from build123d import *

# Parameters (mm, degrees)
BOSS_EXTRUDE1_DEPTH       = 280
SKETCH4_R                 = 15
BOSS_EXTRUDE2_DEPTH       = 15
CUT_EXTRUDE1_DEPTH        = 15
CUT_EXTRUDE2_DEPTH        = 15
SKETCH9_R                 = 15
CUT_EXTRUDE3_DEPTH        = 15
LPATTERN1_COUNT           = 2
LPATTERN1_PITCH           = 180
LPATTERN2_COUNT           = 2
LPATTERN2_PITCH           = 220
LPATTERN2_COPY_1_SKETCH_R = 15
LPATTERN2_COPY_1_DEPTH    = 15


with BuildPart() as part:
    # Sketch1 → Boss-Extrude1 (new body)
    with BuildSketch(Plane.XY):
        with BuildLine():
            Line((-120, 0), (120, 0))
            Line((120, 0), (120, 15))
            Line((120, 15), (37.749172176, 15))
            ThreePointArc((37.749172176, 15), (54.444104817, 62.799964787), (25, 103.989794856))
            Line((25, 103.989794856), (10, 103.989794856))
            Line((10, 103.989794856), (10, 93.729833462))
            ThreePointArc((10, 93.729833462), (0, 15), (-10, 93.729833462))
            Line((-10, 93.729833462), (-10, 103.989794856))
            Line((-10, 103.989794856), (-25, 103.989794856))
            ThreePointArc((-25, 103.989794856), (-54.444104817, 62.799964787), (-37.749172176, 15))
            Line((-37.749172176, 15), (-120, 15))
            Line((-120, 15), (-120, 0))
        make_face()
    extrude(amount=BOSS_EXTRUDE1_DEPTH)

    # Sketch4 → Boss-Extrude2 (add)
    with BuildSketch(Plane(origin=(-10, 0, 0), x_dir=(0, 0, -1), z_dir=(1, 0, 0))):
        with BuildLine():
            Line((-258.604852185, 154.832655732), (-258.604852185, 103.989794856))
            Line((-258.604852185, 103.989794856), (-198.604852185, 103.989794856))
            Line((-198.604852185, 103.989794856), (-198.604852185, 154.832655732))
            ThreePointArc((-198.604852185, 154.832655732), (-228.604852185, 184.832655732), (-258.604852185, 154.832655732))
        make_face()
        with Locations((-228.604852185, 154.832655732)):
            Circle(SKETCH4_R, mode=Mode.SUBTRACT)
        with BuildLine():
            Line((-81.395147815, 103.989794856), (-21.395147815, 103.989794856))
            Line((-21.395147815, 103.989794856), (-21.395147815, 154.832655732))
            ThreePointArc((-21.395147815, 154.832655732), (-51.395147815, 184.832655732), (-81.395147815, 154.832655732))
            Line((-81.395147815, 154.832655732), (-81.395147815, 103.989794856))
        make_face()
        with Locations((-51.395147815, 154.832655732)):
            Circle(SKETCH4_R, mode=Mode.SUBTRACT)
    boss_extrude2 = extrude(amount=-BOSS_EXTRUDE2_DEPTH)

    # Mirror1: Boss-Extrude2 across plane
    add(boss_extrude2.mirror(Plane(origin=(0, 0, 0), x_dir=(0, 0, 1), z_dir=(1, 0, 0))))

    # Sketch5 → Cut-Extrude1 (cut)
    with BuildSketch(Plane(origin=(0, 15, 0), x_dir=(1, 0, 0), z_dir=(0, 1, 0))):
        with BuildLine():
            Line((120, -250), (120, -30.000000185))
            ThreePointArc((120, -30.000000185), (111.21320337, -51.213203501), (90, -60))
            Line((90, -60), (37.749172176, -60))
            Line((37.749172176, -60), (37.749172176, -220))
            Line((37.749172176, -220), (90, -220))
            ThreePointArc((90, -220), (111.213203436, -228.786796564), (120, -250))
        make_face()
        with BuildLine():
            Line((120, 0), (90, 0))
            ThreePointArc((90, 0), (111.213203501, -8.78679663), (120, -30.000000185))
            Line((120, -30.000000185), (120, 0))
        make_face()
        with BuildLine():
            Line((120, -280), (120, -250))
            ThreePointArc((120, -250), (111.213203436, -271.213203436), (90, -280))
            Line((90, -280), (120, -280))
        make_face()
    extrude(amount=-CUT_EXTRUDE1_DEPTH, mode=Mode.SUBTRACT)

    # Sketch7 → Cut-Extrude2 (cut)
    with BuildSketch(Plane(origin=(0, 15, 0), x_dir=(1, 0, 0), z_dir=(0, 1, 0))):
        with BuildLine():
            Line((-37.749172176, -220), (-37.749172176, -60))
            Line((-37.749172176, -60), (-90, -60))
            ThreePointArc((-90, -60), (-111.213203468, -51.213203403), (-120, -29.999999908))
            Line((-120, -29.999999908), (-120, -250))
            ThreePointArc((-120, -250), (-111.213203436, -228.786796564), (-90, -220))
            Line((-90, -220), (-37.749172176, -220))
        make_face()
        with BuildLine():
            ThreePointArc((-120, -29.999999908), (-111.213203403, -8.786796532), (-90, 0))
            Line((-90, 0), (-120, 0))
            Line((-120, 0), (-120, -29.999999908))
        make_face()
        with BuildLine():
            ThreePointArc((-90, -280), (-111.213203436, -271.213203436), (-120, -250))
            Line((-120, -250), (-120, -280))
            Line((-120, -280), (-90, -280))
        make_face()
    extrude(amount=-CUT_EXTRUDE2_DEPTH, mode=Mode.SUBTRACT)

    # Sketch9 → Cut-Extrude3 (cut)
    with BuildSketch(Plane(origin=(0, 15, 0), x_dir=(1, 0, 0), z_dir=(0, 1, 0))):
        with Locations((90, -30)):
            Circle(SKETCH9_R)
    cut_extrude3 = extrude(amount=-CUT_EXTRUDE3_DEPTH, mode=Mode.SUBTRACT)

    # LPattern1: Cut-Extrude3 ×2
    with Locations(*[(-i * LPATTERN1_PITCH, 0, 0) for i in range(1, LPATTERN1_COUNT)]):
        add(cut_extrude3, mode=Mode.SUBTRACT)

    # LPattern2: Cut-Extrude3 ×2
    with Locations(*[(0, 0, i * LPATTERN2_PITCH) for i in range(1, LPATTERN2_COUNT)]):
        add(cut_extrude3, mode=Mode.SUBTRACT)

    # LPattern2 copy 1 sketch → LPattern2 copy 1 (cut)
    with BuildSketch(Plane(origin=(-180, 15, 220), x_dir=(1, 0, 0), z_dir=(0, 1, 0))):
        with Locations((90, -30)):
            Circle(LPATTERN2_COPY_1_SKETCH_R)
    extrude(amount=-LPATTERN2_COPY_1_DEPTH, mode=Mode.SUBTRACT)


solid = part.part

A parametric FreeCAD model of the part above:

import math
import FreeCAD as App
import Part
import Sketcher
Q = App.Units.Quantity

doc = App.newDocument("Part")
body = doc.addObject("PartDesign::Body", "Body")

# Sketch on XY plane
sketch1 = body.newObject("Sketcher::SketchObject", "Sketch")
sketch1.AttachmentSupport = (doc.getObject("XY_Plane"), [""])
sketch1.MapMode = "FlatFace"
sketch1.addGeometry([
    Part.LineSegment(App.Vector(-120, 0, 0), App.Vector(120, 0, 0)),  # 0
    Part.LineSegment(App.Vector(120, 0, 0), App.Vector(120, 15, 0)),  # 1
    Part.LineSegment(App.Vector(120, 15, 0), App.Vector(38, 15, 0)),  # 2
    Part.ArcOfCircle(Part.Circle(App.Vector(0, 55, 0), App.Vector(0, 0, 1), 55), math.radians(-47), math.radians(63)),  # 3
    Part.LineSegment(App.Vector(25, 104, 0), App.Vector(10, 104, 0)),  # 4
    Part.LineSegment(App.Vector(10, 104, 0), App.Vector(10, 94, 0)),  # 5
    Part.ArcOfCircle(Part.Circle(App.Vector(0, 55, 0), App.Vector(0, 0, 1), 40), math.radians(104), math.radians(436)),  # 6
    Part.LineSegment(App.Vector(-10, 94, 0), App.Vector(-10, 104, 0)),  # 7
    Part.LineSegment(App.Vector(-10, 104, 0), App.Vector(-25, 104, 0)),  # 8
    Part.ArcOfCircle(Part.Circle(App.Vector(0, 55, 0), App.Vector(0, 0, 1), 55), math.radians(117), math.radians(227)),  # 9
    Part.LineSegment(App.Vector(-38, 15, 0), App.Vector(-120, 15, 0)),  # 10
    Part.LineSegment(App.Vector(-120, 15, 0), App.Vector(-120, 0, 0)),  # 11
], False)
sketch1.addConstraint([
    Sketcher.Constraint("Coincident", 0, 2, 1, 1),
    Sketcher.Constraint("Coincident", 1, 2, 2, 1),
    Sketcher.Constraint("Coincident", 2, 2, 3, 1),
    Sketcher.Constraint("Coincident", 3, 2, 4, 1),
    Sketcher.Constraint("Coincident", 4, 2, 5, 1),
    Sketcher.Constraint("Coincident", 5, 2, 6, 2),
    Sketcher.Constraint("Coincident", 6, 1, 7, 1),
    Sketcher.Constraint("Coincident", 7, 2, 8, 1),
    Sketcher.Constraint("Coincident", 8, 2, 9, 1),
    Sketcher.Constraint("Coincident", 9, 2, 10, 1),
    Sketcher.Constraint("Coincident", 10, 2, 11, 1),
    Sketcher.Constraint("Coincident", 11, 2, 0, 1),
    Sketcher.Constraint("Horizontal", 0),
    Sketcher.Constraint("Vertical", 1),
    Sketcher.Constraint("Horizontal", 2),
    Sketcher.Constraint("Horizontal", 4),
    Sketcher.Constraint("Vertical", 5),
    Sketcher.Constraint("Vertical", 7),
    Sketcher.Constraint("Horizontal", 8),
    Sketcher.Constraint("Horizontal", 10),
    Sketcher.Constraint("Vertical", 11),
    Sketcher.Constraint("Coincident", 6, 3, 3, 3),
    Sketcher.Constraint("Coincident", 9, 3, 3, 3),
    Sketcher.Constraint("Equal", 3, 9),
    Sketcher.Constraint("Symmetric", 0, 2, 11, 2, -1, 1),
    Sketcher.Constraint("Symmetric", 5, 2, 6, 1, -2),
    Sketcher.Constraint("Horizontal", 4, 2, 7, 2),
    Sketcher.Constraint("Horizontal", 2, 2, 9, 2),
    Sketcher.Constraint("Equal", 8, 1),
    Sketcher.Constraint("Radius", 3, Q("55 mm")),
    Sketcher.Constraint("Radius", 6, Q("40 mm")),
    Sketcher.Constraint("DistanceX", 0, 1, 0, 2, Q("240 mm")),
    Sketcher.Constraint("DistanceX", 4, 2, 4, 1, Q("15 mm")),
    Sketcher.Constraint("DistanceY", -1, 1, 3, 3, Q("55 mm")),
    Sketcher.Constraint("DistanceX", -1, 1, 3, 2, Q("25 mm")),
])
pad1 = body.newObject("PartDesign::Pad", "Pad")
pad1.Profile = sketch1
pad1.Length = 280

# Sketch on YZ plane
sketch2 = body.newObject("Sketcher::SketchObject", "Sketch001")
sketch2.AttachmentSupport = (doc.getObject("YZ_Plane"), [""])
sketch2.MapMode = "FlatFace"
sketch2.AttachmentOffset = App.Placement(App.Vector(0, 0, -10), App.Rotation())
sketch2.addGeometry([
    Part.LineSegment(App.Vector(155, 259, 0), App.Vector(104, 259, 0)),  # 0
    Part.LineSegment(App.Vector(104, 259, 0), App.Vector(104, 199, 0)),  # 1
    Part.LineSegment(App.Vector(104, 199, 0), App.Vector(155, 199, 0)),  # 2
    Part.ArcOfCircle(Part.Circle(App.Vector(155, 229, 0), App.Vector(0, 0, 1), 30), math.radians(-90), math.radians(90)),  # 3
    Part.Circle(App.Vector(155, 229, 0), App.Vector(0, 0, 1), 15),  # 4
    Part.LineSegment(App.Vector(104, 81, 0), App.Vector(104, 21, 0)),  # 5
    Part.LineSegment(App.Vector(104, 21, 0), App.Vector(155, 21, 0)),  # 6
    Part.ArcOfCircle(Part.Circle(App.Vector(155, 51, 0), App.Vector(0, 0, 1), 30), math.radians(-90), math.radians(90)),  # 7
    Part.LineSegment(App.Vector(155, 81, 0), App.Vector(104, 81, 0)),  # 8
    Part.Circle(App.Vector(155, 51, 0), App.Vector(0, 0, 1), 15),  # 9
], False)
sketch2.addConstraint([
    Sketcher.Constraint("Coincident", 0, 2, 1, 1),
    Sketcher.Constraint("Coincident", 1, 2, 2, 1),
    Sketcher.Constraint("Tangent", 2, 2, 3, 1),
    Sketcher.Constraint("Tangent", 3, 2, 0, 1),
    Sketcher.Constraint("Coincident", 5, 2, 6, 1),
    Sketcher.Constraint("Tangent", 6, 2, 7, 1),
    Sketcher.Constraint("Tangent", 7, 2, 8, 1),
    Sketcher.Constraint("Coincident", 8, 2, 5, 1),
    Sketcher.Constraint("Horizontal", 0),
    Sketcher.Constraint("Vertical", 1),
    Sketcher.Constraint("Horizontal", 2),
    Sketcher.Constraint("Vertical", 5),
    Sketcher.Constraint("Horizontal", 6),
    Sketcher.Constraint("Horizontal", 8),
    Sketcher.Constraint("Coincident", 4, 3, 3, 3),
    Sketcher.Constraint("Coincident", 9, 3, 7, 3),
    Sketcher.Constraint("Equal", 3, 7),
    Sketcher.Constraint("Equal", 4, 9),
    Sketcher.Constraint("Vertical", 4, 3, 7, 3),
    Sketcher.Constraint("Vertical", 1, 2, 5, 2),
    Sketcher.Constraint("Diameter", 4, Q("30 mm")),
    Sketcher.Constraint("Radius", 3, Q("30 mm")),
    Sketcher.Constraint("DistanceX", 0, 2, 0, 1, Q("50.842861 mm")),
    Sketcher.Constraint("DistanceX", -1, 1, 3, 3, Q("154.832656 mm")),
    Sketcher.Constraint("DistanceY", -1, 1, 3, 3, Q("228.604852 mm")),
    Sketcher.Constraint("DistanceY", -1, 1, 7, 3, Q("51.395148 mm")),
])
pad2 = body.newObject("PartDesign::Pad", "Pad001")
pad2.Profile = sketch2
pad2.Length = 15
pad2.Reversed = True
doc.recompute()

mirrored = body.newObject("PartDesign::Mirrored", "Mirrored")
mirrored.Originals = [pad2]
mirrored.MirrorPlane = (doc.getObject("YZ_Plane"), [""])
body.Tip = mirrored

# Sketch on XZ plane
sketch3 = body.newObject("Sketcher::SketchObject", "Sketch002")
sketch3.AttachmentSupport = (doc.getObject("XZ_Plane"), [""])
sketch3.MapMode = "FlatFace"
sketch3.AttachmentOffset = App.Placement(App.Vector(0, 0, -15), App.Rotation())
sketch3.addGeometry([
    Part.LineSegment(App.Vector(120, 250, 0), App.Vector(120, 30, 0)),  # 0
    Part.ArcOfCircle(Part.Circle(App.Vector(90, 30, 0), App.Vector(0, 0, 1), 30), math.radians(0), math.radians(90)),  # 1
    Part.LineSegment(App.Vector(90, 60, 0), App.Vector(38, 60, 0)),  # 2
    Part.LineSegment(App.Vector(38, 60, 0), App.Vector(38, 220, 0)),  # 3
    Part.LineSegment(App.Vector(38, 220, 0), App.Vector(90, 220, 0)),  # 4
    Part.ArcOfCircle(Part.Circle(App.Vector(90, 250, 0), App.Vector(0, 0, 1), 30), math.radians(-90), math.radians(0)),  # 5
    Part.LineSegment(App.Vector(120, 0, 0), App.Vector(90, 0, 0)),  # 6
    Part.ArcOfCircle(Part.Circle(App.Vector(90, 30, 0), App.Vector(0, 0, 1), 30), math.radians(-90), math.radians(0)),  # 7
    Part.LineSegment(App.Vector(120, 30, 0), App.Vector(120, 0, 0)),  # 8
    Part.LineSegment(App.Vector(120, 280, 0), App.Vector(120, 250, 0)),  # 9
    Part.ArcOfCircle(Part.Circle(App.Vector(90, 250, 0), App.Vector(0, 0, 1), 30), math.radians(0), math.radians(90)),  # 10
    Part.LineSegment(App.Vector(90, 280, 0), App.Vector(120, 280, 0)),  # 11
], False)
sketch3.addConstraint([
    Sketcher.Constraint("Tangent", 0, 2, 1, 1),
    Sketcher.Constraint("Tangent", 1, 2, 2, 1),
    Sketcher.Constraint("Coincident", 2, 2, 3, 1),
    Sketcher.Constraint("Coincident", 3, 2, 4, 1),
    Sketcher.Constraint("Tangent", 4, 2, 5, 1),
    Sketcher.Constraint("Tangent", 5, 2, 0, 1),
    Sketcher.Constraint("Tangent", 6, 2, 7, 1),
    Sketcher.Constraint("Tangent", 7, 2, 8, 1),
    Sketcher.Constraint("Coincident", 8, 2, 6, 1),
    Sketcher.Constraint("Tangent", 9, 2, 10, 1),
    Sketcher.Constraint("Tangent", 10, 2, 11, 1),
    Sketcher.Constraint("Coincident", 11, 2, 9, 1),
    Sketcher.Constraint("Vertical", 0),
    Sketcher.Constraint("Horizontal", 2),
    Sketcher.Constraint("Vertical", 3),
    Sketcher.Constraint("Horizontal", 4),
    Sketcher.Constraint("Horizontal", 6),
    Sketcher.Constraint("Vertical", 8),
    Sketcher.Constraint("Vertical", 9),
    Sketcher.Constraint("Horizontal", 11),
    Sketcher.Constraint("Coincident", 7, 3, 1, 3),
    Sketcher.Constraint("Coincident", 10, 3, 5, 3),
    Sketcher.Constraint("Equal", 1, 5),
    Sketcher.Constraint("Equal", 5, 7),
    Sketcher.Constraint("Equal", 7, 10),
    Sketcher.Constraint("PointOnObject", 6, 2, -1),
    Sketcher.Constraint("Radius", 1, Q("30 mm")),
    Sketcher.Constraint("DistanceY", 0, 2, 0, 1, Q("220 mm")),
    Sketcher.Constraint("DistanceX", -1, 1, 1, 3, Q("90 mm")),
    Sketcher.Constraint("DistanceX", 2, 2, 2, 1, Q("52.250828 mm")),
])
pocket1 = body.newObject("PartDesign::Pocket", "Pocket")
pocket1.Profile = sketch3
pocket1.Length = 15
pocket1.Reversed = True

# Sketch on XZ plane
sketch4 = body.newObject("Sketcher::SketchObject", "Sketch003")
sketch4.AttachmentSupport = (doc.getObject("XZ_Plane"), [""])
sketch4.MapMode = "FlatFace"
sketch4.AttachmentOffset = App.Placement(App.Vector(0, 0, -15), App.Rotation())
sketch4.addGeometry([
    Part.LineSegment(App.Vector(-38, 220, 0), App.Vector(-38, 60, 0)),  # 0
    Part.LineSegment(App.Vector(-38, 60, 0), App.Vector(-90, 60, 0)),  # 1
    Part.ArcOfCircle(Part.Circle(App.Vector(-90, 30, 0), App.Vector(0, 0, 1), 30), math.radians(90), math.radians(180)),  # 2
    Part.LineSegment(App.Vector(-120, 30, 0), App.Vector(-120, 250, 0)),  # 3
    Part.ArcOfCircle(Part.Circle(App.Vector(-90, 250, 0), App.Vector(0, 0, 1), 30), math.radians(180), math.radians(270)),  # 4
    Part.LineSegment(App.Vector(-90, 220, 0), App.Vector(-38, 220, 0)),  # 5
    Part.ArcOfCircle(Part.Circle(App.Vector(-90, 30, 0), App.Vector(0, 0, 1), 30), math.radians(-180), math.radians(-90)),  # 6
    Part.LineSegment(App.Vector(-90, 0, 0), App.Vector(-120, 0, 0)),  # 7
    Part.LineSegment(App.Vector(-120, 0, 0), App.Vector(-120, 30, 0)),  # 8
    Part.ArcOfCircle(Part.Circle(App.Vector(-90, 250, 0), App.Vector(0, 0, 1), 30), math.radians(90), math.radians(180)),  # 9
    Part.LineSegment(App.Vector(-120, 250, 0), App.Vector(-120, 280, 0)),  # 10
    Part.LineSegment(App.Vector(-120, 280, 0), App.Vector(-90, 280, 0)),  # 11
], False)
sketch4.addConstraint([
    Sketcher.Constraint("Coincident", 0, 2, 1, 1),
    Sketcher.Constraint("Tangent", 1, 2, 2, 1),
    Sketcher.Constraint("Tangent", 2, 2, 3, 1),
    Sketcher.Constraint("Tangent", 3, 2, 4, 1),
    Sketcher.Constraint("Tangent", 4, 2, 5, 1),
    Sketcher.Constraint("Coincident", 5, 2, 0, 1),
    Sketcher.Constraint("Tangent", 6, 2, 7, 1),
    Sketcher.Constraint("Coincident", 7, 2, 8, 1),
    Sketcher.Constraint("Tangent", 8, 2, 6, 1),
    Sketcher.Constraint("Tangent", 9, 2, 10, 1),
    Sketcher.Constraint("Coincident", 10, 2, 11, 1),
    Sketcher.Constraint("Tangent", 11, 2, 9, 1),
    Sketcher.Constraint("Vertical", 0),
    Sketcher.Constraint("Horizontal", 1),
    Sketcher.Constraint("Vertical", 3),
    Sketcher.Constraint("Horizontal", 5),
    Sketcher.Constraint("Horizontal", 7),
    Sketcher.Constraint("Vertical", 8),
    Sketcher.Constraint("Vertical", 10),
    Sketcher.Constraint("Horizontal", 11),
    Sketcher.Constraint("Coincident", 6, 3, 2, 3),
    Sketcher.Constraint("Coincident", 9, 3, 4, 3),
    Sketcher.Constraint("Equal", 2, 4),
    Sketcher.Constraint("Equal", 4, 6),
    Sketcher.Constraint("Equal", 6, 9),
    Sketcher.Constraint("PointOnObject", 6, 2, -1),
    Sketcher.Constraint("Radius", 2, Q("30 mm")),
    Sketcher.Constraint("DistanceY", 0, 2, 0, 1, Q("160 mm")),
    Sketcher.Constraint("DistanceX", 2, 3, -1, 1, Q("90 mm")),
    Sketcher.Constraint("DistanceX", 1, 2, 1, 1, Q("52.250828 mm")),
])
pocket2 = body.newObject("PartDesign::Pocket", "Pocket001")
pocket2.Profile = sketch4
pocket2.Length = 15
pocket2.Reversed = True

# Sketch on XZ plane
sketch5 = body.newObject("Sketcher::SketchObject", "Sketch004")
sketch5.AttachmentSupport = (doc.getObject("XZ_Plane"), [""])
sketch5.MapMode = "FlatFace"
sketch5.AttachmentOffset = App.Placement(App.Vector(0, 0, -15), App.Rotation())
sketch5.addGeometry(Part.Circle(App.Vector(90, 30, 0), App.Vector(0, 0, 1), 15), False)
sketch5.addConstraint([
    Sketcher.Constraint("Diameter", 0, Q("30 mm")),
    Sketcher.Constraint("DistanceX", -1, 1, 0, 3, Q("90 mm")),
    Sketcher.Constraint("DistanceY", -1, 1, 0, 3, Q("30 mm")),
])
pocket3 = body.newObject("PartDesign::Pocket", "Pocket002")
pocket3.Profile = sketch5
pocket3.Length = 15
pocket3.Reversed = True
doc.recompute()

linearpattern = body.newObject("PartDesign::LinearPattern", "LinearPattern")
linearpattern.Originals = [pocket3]
linearpattern.Direction = (doc.getObject("X_Axis"), [""])
linearpattern.Mode = "offset"
linearpattern.Offset = 180
linearpattern.Occurrences = 2
linearpattern.Reversed = True
body.Tip = linearpattern
doc.recompute()

linearpattern2 = body.newObject("PartDesign::LinearPattern", "LinearPattern001")
linearpattern2.Originals = [pocket3]
linearpattern2.Direction = (doc.getObject("Z_Axis"), [""])
linearpattern2.Mode = "offset"
linearpattern2.Offset = 220
linearpattern2.Occurrences = 2
body.Tip = linearpattern2

# Sketch on XZ plane
sketch6 = body.newObject("Sketcher::SketchObject", "Sketch005")
sketch6.AttachmentSupport = (doc.getObject("XZ_Plane"), [""])
sketch6.MapMode = "FlatFace"
sketch6.AttachmentOffset = App.Placement(App.Vector(0, 0, -15), App.Rotation())
sketch6.addGeometry(Part.Circle(App.Vector(-90, 250, 0), App.Vector(0, 0, 1), 15), False)
sketch6.addConstraint([
    Sketcher.Constraint("Diameter", 0, Q("30 mm")),
    Sketcher.Constraint("DistanceX", 0, 3, -1, 1, Q("90 mm")),
    Sketcher.Constraint("DistanceY", -1, 1, 0, 3, Q("250 mm")),
])
pocket4 = body.newObject("PartDesign::Pocket", "Pocket003")
pocket4.Profile = sketch6
pocket4.Length = 15
pocket4.Reversed = True

doc.recompute()
